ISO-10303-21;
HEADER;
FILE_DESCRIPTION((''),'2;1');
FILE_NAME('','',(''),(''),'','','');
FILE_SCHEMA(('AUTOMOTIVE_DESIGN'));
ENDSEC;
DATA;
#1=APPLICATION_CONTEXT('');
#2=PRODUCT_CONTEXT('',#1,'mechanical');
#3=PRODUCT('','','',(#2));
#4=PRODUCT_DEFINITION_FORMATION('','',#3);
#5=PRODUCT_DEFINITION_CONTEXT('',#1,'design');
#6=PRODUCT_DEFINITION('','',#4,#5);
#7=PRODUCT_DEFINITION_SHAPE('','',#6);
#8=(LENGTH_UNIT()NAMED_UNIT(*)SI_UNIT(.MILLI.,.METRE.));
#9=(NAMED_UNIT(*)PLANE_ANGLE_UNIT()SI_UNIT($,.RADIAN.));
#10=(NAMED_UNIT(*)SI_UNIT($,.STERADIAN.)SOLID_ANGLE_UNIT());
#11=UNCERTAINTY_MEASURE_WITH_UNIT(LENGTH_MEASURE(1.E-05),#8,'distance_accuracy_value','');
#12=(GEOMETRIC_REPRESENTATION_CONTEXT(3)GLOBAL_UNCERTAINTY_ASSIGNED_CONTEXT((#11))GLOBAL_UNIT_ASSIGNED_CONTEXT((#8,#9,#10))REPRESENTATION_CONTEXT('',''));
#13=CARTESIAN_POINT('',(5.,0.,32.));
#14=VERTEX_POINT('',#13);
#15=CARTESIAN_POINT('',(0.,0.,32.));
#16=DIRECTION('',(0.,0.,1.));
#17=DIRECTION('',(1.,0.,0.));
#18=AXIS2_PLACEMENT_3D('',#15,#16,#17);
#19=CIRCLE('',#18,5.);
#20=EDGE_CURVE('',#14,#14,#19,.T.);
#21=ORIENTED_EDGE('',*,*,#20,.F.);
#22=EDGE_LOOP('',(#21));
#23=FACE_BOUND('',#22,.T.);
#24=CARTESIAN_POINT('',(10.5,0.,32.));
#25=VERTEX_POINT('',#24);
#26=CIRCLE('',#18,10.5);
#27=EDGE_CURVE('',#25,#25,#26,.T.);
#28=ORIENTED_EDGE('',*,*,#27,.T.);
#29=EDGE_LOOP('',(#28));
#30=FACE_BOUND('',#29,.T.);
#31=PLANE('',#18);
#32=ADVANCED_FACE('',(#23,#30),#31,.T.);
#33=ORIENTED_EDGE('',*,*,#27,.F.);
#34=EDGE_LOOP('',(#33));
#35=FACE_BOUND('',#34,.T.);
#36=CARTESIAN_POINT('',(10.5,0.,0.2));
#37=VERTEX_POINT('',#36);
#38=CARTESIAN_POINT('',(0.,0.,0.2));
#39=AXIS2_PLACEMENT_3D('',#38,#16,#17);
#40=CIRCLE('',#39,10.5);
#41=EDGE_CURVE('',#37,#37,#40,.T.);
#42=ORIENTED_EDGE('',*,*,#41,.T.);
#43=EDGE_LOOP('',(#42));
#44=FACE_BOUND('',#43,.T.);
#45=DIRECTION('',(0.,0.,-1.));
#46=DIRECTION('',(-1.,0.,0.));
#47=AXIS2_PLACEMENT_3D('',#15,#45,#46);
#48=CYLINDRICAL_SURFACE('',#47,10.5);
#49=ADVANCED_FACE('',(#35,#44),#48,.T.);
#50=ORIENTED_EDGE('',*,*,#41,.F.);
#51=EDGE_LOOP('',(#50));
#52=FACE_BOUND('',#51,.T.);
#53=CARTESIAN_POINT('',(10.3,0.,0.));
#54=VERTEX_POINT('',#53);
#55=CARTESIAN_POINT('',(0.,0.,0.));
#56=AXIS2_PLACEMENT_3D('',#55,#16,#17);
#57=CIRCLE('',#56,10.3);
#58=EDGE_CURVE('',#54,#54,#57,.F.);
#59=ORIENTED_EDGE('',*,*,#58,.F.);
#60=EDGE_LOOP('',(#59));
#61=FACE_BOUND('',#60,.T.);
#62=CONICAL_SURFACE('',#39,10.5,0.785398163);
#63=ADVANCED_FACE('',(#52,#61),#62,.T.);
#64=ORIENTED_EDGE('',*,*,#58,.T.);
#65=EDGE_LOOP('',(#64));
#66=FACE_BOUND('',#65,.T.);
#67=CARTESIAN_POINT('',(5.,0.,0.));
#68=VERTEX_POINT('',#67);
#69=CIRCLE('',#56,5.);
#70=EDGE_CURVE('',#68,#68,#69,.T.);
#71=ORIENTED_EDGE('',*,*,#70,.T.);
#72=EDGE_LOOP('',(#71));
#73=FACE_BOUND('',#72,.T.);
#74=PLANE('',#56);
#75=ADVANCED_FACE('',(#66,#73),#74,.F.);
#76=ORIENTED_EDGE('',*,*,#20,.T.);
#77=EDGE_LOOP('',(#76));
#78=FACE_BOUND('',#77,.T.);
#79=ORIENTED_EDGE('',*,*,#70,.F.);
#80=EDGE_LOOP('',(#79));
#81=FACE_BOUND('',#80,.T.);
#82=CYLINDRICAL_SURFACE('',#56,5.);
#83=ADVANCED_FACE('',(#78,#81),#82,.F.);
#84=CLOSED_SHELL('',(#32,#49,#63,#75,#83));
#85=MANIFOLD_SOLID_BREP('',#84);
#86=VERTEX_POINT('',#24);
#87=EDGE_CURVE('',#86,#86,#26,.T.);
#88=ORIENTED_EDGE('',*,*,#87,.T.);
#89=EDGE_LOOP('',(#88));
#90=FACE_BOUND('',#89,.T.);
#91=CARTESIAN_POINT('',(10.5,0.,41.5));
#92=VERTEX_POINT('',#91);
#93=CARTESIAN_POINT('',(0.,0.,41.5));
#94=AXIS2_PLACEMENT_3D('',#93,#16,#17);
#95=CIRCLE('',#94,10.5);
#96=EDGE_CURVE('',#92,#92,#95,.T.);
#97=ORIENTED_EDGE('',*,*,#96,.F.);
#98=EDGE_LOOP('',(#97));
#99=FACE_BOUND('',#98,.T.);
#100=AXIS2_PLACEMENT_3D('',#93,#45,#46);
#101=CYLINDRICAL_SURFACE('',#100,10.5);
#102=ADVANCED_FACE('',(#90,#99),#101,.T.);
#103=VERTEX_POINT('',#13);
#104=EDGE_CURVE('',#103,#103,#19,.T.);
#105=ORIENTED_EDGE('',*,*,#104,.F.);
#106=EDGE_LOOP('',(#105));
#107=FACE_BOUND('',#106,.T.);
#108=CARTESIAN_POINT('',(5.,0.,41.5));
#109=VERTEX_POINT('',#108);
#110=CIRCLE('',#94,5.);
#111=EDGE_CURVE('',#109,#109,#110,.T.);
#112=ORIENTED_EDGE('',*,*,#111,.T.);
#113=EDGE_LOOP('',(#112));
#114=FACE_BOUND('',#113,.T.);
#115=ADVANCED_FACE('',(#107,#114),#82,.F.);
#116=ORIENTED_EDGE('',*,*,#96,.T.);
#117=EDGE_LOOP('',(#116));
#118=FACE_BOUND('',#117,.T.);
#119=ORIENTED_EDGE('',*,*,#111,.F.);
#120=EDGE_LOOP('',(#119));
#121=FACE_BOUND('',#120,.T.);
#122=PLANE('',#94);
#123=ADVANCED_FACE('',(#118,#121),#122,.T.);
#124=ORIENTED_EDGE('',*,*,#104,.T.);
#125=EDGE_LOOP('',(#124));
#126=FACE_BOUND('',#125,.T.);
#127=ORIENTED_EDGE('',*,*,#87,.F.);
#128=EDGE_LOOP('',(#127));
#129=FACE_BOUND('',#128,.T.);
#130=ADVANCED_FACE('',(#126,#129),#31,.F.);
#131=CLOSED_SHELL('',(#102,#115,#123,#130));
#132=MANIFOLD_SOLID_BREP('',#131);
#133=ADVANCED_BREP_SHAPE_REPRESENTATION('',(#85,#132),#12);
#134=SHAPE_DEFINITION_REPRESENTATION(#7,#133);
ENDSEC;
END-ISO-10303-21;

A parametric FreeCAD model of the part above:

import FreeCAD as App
import Part
import Sketcher
from FreeCAD import Vector
Q = App.Units.Quantity


def edges_at(feature, points):
    """Names of the edges that pass closest to the given points."""
    edges = feature.Shape.Edges
    near = lambda p: min(range(len(edges)), key=lambda i: edges[i].distToShape(Part.Vertex(*p))[0])
    return sorted({f"Edge{near(p) + 1}" for p in points})

doc = App.newDocument("Part")
body = doc.addObject("PartDesign::Body", "Body")

sketch1 = doc.addObject("Sketcher::SketchObject", "Sketch")
body.addObject(sketch1)
sketch1.AttachmentSupport = (doc.XY_Plane, [""])
sketch1.MapMode = "FlatFace"
sketch1.addGeometry(Part.Circle(Vector(0, 0, 0), Vector(0, 0, 1), 10.5), False)
sketch1.addConstraint([
    Sketcher.Constraint("Coincident", 0, 3, -1, 1),
    Sketcher.Constraint("Diameter", 0, Q("21 mm")),
])
pad1 = doc.addObject("PartDesign::Pad", "Pad")
body.addObject(pad1)
pad1.Profile = sketch1
pad1.Length = 32
body2 = doc.addObject("PartDesign::Body", "Body001")

sketch2 = doc.addObject("Sketcher::SketchObject", "Sketch001")
body2.addObject(sketch2)
sketch2.AttachmentSupport = (doc.getObject("XY_Plane001"), [""])
sketch2.MapMode = "FlatFace"
sketch2.AttachmentOffset = App.Placement(Vector(0, 0, 32), App.Rotation())
sketch2.addGeometry(Part.Circle(Vector(0, 0, 0), Vector(0, 0, 1), 10.5), False)
sketch2.addConstraint([
    Sketcher.Constraint("Coincident", 0, 3, -1, 1),
    Sketcher.Constraint("Diameter", 0, Q("21 mm")),
])
pad2 = doc.addObject("PartDesign::Pad", "Pad001")
body2.addObject(pad2)
pad2.Profile = sketch2
pad2.Length = 9.5
body3 = doc.addObject("PartDesign::Body", "Body002")

sketch3 = doc.addObject("Sketcher::SketchObject", "Sketch002")
body3.addObject(sketch3)
sketch3.AttachmentSupport = (doc.getObject("XY_Plane002"), [""])
sketch3.MapMode = "FlatFace"
sketch3.AttachmentOffset = App.Placement(Vector(0, 0, 41.5), App.Rotation())
sketch3.addGeometry(Part.Circle(Vector(0, 0, 0), Vector(0, 0, 1), 5), False)
sketch3.addConstraint([
    Sketcher.Constraint("Coincident", 0, 3, -1, 1),
    Sketcher.Constraint("Diameter", 0, Q("10 mm")),
])
pad3 = doc.addObject("PartDesign::Pad", "Pad002")
body3.addObject(pad3)
pad3.Profile = sketch3
pad3.Length = 45.076638
pad3.Reversed = True
doc.recompute()

body4 = doc.addObject("PartDesign::Body", "Body003")
body4.BaseFeature = body3
boolean = doc.addObject("PartDesign::Boolean", "Boolean")
body.addObject(boolean)
boolean.Type = "Cut"
boolean.addObjects([body4])
doc.recompute()

chamfer = doc.addObject("PartDesign::Chamfer", "Chamfer")
body.addObject(chamfer)
chamfer.Base = (boolean, edges_at(boolean, [(-10.5, 0, 0)]))
chamfer.Size = 0.2
doc.recompute()

boolean2 = doc.addObject("PartDesign::Boolean", "Boolean001")
body2.addObject(boolean2)
boolean2.Type = "Cut"
boolean2.addObjects([body3])

doc.recompute()
